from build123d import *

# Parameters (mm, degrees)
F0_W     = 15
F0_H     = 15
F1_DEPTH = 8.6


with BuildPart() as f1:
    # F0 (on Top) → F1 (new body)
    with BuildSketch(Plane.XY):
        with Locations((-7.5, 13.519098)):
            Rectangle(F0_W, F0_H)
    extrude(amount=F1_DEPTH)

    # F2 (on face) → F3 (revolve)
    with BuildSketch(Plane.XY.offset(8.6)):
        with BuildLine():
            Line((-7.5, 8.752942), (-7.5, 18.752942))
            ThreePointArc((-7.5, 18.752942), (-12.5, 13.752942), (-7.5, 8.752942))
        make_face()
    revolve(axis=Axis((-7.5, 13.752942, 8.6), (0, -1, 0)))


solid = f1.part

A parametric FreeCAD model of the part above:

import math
import FreeCAD as App
import Part
import Sketcher
from FreeCAD import Vector

doc = App.newDocument("Part")
params = doc.addObject("Spreadsheet::Sheet", "Params")
for row, (alias, value) in enumerate([
    ("sketch1_width", "15 mm"),
    ("pad1_length", "8.6 mm"),
    ("sketch2_radius", "5 mm"),
    ("revolution_angle", "360 deg"),
], start=1):
    params.set(f"A{row}", alias)
    params.set(f"B{row}", "=" + value)
    params.setAlias(f"B{row}", alias)

body = doc.addObject("PartDesign::Body", "Body")

sketch1 = doc.addObject("Sketcher::SketchObject", "Sketch")
body.addObject(sketch1)
sketch1.AttachmentSupport = (doc.XY_Plane, [""])
sketch1.MapMode = "FlatFace"
sketch1.addGeometry(Part.LineSegment(Vector(-15, 21, 0), Vector(-15, 6, 0)), False)
sketch1.addGeometry(Part.LineSegment(Vector(-15, 6, 0), Vector(0, 6, 0)), False)
sketch1.addGeometry(Part.LineSegment(Vector(0, 6, 0), Vector(0, 21, 0)), False)
sketch1.addGeometry(Part.LineSegment(Vector(0, 21, 0), Vector(-15, 21, 0)), False)
sketch1.addConstraint(Sketcher.Constraint("Coincident", 0, 2, 1, 1))
sketch1.addConstraint(Sketcher.Constraint("Coincident", 1, 2, 2, 1))
sketch1.addConstraint(Sketcher.Constraint("Coincident", 2, 2, 3, 1))
sketch1.addConstraint(Sketcher.Constraint("Coincident", 3, 2, 0, 1))
sketch1.addConstraint(Sketcher.Constraint("Vertical", 0))
sketch1.addConstraint(Sketcher.Constraint("Horizontal", 1))
sketch1.addConstraint(Sketcher.Constraint("Vertical", 2))
sketch1.addConstraint(Sketcher.Constraint("Horizontal", 3))
sketch1.addConstraint(Sketcher.Constraint("PointOnObject", 1, 2, -2))
sketch1.addConstraint(Sketcher.Constraint("Equal", 3, 0))
sketch1.addConstraint(Sketcher.Constraint("DistanceX", 1, 1, 1, 2, 15.0))
sketch1.addConstraint(Sketcher.Constraint("DistanceY", -1, 1, 0, 2, 6.019098))
sketch1.setExpression("Constraints[10]", "Params.sketch1_width")
pad1 = doc.addObject("PartDesign::Pad", "Pad")
body.addObject(pad1)
pad1.Profile = sketch1
pad1.setExpression("Length", "Params.pad1_length")

sketch2 = doc.addObject("Sketcher::SketchObject", "Sketch001")
body.addObject(sketch2)
sketch2.AttachmentSupport = (doc.XY_Plane, [""])
sketch2.MapMode = "FlatFace"
sketch2.AttachmentOffset = App.Placement(Vector(0, 0, 8.6), App.Rotation())
sketch2.addGeometry(Part.LineSegment(Vector(-8, 9, 0), Vector(-8, 19, 0)), False)
sketch2.addGeometry(Part.ArcOfCircle(Part.Circle(Vector(-8, 14, 0), Vector(0, 0, 1), 5), math.radians(90), math.radians(270)), False)
sketch2.addGeometry(Part.LineSegment(Vector(-8, 19, 0), Vector(-8, 9, 0)), True)
sketch2.addConstraint(Sketcher.Constraint("Coincident", 0, 1, 1, 2))
sketch2.addConstraint(Sketcher.Constraint("Coincident", 1, 1, 0, 2))
sketch2.addConstraint(Sketcher.Constraint("Vertical", 0))
sketch2.addConstraint(Sketcher.Constraint("Vertical", 2))
sketch2.addConstraint(Sketcher.Constraint("Coincident", 2, 1, 1, 1))
sketch2.addConstraint(Sketcher.Constraint("Vertical", 1, 3, 0, 1))
sketch2.addConstraint(Sketcher.Constraint("Equal", 0, 2))
sketch2.addConstraint(Sketcher.Constraint("Radius", 1, 5.0))
sketch2.addConstraint(Sketcher.Constraint("DistanceX", 1, 3, -1, 1, 7.5))
sketch2.addConstraint(Sketcher.Constraint("DistanceY", -1, 1, 1, 3, 13.752942))
sketch2.setExpression("Constraints[7]", "Params.sketch2_radius")
revolution = doc.addObject("PartDesign::Revolution", "Revolution")
body.addObject(revolution)
revolution.Profile = sketch2
revolution.ReferenceAxis = (sketch2, ["Axis0"])
revolution.setExpression("Angle", "Params.revolution_angle")

doc.recompute()
